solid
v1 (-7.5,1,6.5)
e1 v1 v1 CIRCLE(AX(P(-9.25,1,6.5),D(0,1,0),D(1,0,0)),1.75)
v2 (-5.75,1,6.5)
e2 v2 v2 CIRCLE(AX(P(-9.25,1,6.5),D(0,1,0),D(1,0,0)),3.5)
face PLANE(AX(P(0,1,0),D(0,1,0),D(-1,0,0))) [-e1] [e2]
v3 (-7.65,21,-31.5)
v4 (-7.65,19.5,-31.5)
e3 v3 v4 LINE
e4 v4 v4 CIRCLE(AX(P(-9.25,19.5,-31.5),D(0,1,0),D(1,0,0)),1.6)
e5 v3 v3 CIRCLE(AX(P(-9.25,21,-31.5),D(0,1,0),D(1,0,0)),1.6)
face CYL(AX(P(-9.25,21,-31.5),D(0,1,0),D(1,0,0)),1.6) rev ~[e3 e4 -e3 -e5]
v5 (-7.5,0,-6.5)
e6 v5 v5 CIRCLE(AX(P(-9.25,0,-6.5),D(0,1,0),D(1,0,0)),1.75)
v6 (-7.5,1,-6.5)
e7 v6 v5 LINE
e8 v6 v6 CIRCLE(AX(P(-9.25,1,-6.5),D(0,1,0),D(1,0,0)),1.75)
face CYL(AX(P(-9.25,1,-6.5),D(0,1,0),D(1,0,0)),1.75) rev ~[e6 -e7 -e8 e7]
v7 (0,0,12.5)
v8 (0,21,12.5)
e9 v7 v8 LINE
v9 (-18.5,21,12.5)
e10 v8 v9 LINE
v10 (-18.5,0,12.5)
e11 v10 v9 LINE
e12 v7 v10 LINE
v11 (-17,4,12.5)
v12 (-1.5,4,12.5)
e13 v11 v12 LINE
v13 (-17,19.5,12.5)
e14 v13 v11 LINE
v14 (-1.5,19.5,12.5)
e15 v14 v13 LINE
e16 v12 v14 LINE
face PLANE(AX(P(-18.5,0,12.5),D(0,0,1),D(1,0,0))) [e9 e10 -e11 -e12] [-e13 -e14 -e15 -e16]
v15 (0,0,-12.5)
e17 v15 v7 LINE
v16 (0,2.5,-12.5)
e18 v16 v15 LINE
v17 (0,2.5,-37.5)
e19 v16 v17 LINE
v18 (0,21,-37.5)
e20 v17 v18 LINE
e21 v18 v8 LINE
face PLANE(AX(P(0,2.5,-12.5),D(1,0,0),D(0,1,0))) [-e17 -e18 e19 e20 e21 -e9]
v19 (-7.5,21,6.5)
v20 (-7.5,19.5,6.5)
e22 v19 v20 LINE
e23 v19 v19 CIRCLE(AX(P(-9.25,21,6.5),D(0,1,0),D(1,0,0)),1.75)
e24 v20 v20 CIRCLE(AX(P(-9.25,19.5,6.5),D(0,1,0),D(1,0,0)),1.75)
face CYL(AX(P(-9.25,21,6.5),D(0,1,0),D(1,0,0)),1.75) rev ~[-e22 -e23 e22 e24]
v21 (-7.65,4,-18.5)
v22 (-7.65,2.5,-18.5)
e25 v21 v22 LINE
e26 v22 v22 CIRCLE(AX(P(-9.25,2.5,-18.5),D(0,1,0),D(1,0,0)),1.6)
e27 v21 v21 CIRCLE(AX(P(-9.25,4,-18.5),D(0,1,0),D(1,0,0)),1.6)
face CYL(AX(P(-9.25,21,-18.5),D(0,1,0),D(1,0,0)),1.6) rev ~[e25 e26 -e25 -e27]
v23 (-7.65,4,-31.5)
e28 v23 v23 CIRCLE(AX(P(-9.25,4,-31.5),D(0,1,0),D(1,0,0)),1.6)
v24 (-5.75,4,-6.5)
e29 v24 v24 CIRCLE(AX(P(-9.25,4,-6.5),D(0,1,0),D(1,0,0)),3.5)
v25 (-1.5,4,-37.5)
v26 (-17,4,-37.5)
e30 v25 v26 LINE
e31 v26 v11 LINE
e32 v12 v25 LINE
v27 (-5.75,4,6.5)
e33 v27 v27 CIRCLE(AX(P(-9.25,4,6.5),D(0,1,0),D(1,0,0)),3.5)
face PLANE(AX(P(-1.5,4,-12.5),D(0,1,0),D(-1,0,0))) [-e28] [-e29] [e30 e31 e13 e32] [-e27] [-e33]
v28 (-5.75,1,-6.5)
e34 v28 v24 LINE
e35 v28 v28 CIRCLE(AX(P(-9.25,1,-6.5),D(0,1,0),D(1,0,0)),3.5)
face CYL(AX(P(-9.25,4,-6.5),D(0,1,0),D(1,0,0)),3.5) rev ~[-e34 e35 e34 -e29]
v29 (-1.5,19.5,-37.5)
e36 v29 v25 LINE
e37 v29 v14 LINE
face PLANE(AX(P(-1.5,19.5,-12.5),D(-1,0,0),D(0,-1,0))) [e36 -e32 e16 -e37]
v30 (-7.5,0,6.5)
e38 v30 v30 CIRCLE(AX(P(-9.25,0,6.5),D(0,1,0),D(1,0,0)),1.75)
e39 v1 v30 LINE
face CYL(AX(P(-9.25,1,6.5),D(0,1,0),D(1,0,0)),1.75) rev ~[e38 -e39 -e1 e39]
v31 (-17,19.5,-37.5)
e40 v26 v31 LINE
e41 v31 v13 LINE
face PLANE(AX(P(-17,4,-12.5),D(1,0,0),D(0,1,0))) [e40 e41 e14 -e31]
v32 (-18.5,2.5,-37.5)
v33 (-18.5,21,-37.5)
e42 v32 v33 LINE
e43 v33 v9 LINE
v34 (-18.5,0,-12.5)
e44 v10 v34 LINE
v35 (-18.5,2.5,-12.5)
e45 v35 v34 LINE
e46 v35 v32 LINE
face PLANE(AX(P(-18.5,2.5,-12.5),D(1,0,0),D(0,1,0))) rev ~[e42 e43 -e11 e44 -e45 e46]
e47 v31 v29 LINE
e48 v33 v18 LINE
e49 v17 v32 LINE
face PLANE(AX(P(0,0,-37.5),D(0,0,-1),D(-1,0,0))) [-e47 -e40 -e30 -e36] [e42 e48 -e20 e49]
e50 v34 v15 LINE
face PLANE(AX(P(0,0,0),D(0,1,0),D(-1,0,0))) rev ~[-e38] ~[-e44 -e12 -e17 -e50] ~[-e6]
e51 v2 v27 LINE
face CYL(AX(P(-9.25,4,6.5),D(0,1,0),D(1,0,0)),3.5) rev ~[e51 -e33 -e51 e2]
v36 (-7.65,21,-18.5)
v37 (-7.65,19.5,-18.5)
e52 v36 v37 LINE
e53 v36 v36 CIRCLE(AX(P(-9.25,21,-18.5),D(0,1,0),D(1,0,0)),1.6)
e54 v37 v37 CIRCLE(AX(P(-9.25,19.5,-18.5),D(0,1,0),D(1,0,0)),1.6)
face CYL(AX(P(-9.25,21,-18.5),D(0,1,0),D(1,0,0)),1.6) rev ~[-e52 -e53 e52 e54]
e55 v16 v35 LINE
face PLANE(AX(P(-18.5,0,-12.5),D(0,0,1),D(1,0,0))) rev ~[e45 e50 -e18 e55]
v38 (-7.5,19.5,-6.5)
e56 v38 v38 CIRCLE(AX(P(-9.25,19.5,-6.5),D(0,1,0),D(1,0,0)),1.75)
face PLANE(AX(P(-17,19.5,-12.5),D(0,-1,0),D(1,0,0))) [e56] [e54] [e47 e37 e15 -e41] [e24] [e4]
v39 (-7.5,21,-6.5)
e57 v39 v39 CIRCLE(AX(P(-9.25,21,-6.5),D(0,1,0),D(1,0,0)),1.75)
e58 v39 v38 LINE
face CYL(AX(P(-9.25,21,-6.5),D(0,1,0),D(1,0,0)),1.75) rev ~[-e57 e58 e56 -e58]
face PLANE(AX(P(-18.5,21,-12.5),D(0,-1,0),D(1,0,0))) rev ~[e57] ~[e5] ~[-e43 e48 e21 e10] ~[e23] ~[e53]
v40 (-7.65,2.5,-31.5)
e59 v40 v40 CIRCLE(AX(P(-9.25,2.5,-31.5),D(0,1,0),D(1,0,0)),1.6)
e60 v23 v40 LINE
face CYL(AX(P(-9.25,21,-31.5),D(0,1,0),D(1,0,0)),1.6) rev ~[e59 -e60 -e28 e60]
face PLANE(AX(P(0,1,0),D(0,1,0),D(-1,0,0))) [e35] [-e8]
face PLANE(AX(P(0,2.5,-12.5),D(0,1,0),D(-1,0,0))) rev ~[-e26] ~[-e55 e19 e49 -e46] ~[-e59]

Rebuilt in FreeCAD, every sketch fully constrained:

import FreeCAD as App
import Part
import Sketcher
Q = App.Units.Quantity

doc = App.newDocument("Part")
body = doc.addObject("PartDesign::Body", "Body")

sketch1 = body.newObject("Sketcher::SketchObject", "Sketch")
sketch1.AttachmentSupport = (doc.getObject("XZ_Plane"), [""])
sketch1.MapMode = "FlatFace"
sketch1.addGeometry([
    Part.LineSegment(App.Vector(-18.5, 12.5, 0), App.Vector(0, 12.5, 0)),
    Part.LineSegment(App.Vector(0, 12.5, 0), App.Vector(0, -12.5, 0)),
    Part.LineSegment(App.Vector(0, -12.5, 0), App.Vector(-18.5, -12.5, 0)),
    Part.LineSegment(App.Vector(-18.5, -12.5, 0), App.Vector(-18.5, 12.5, 0)),
], False)
sketch1.addConstraint([
    Sketcher.Constraint("Coincident", 0, 2, 1, 1),
    Sketcher.Constraint("Coincident", 1, 2, 2, 1),
    Sketcher.Constraint("Coincident", 2, 2, 3, 1),
    Sketcher.Constraint("Coincident", 3, 2, 0, 1),
    Sketcher.Constraint("Horizontal", 0),
    Sketcher.Constraint("Vertical", 1),
    Sketcher.Constraint("Horizontal", 2),
    Sketcher.Constraint("Vertical", 3),
    Sketcher.Constraint("Symmetric", 0, 2, 1, 2, -1, 1),
    Sketcher.Constraint("DistanceY", 1, 2, 1, 1, Q("25 mm")),
    Sketcher.Constraint("DistanceX", 0, 1, 0, 2, Q("18.5 mm")),
])
pad1 = body.newObject("PartDesign::Pad", "Pad")
pad1.Profile = sketch1
pad1.Length = 1
pad1.Reversed = True

sketch2 = body.newObject("Sketcher::SketchObject", "Sketch001")
sketch2.AttachmentSupport = (doc.getObject("XZ_Plane"), [""])
sketch2.MapMode = "FlatFace"
sketch2.AttachmentOffset = App.Placement(App.Vector(0, 0, -1), App.Rotation())
sketch2.addGeometry([
    Part.Circle(App.Vector(-9.25, 6.5, 0), App.Vector(0, 0, 1), 1.75),
    Part.Circle(App.Vector(-9.25, -6.5, 0), App.Vector(0, 0, 1), 1.75),
], False)
sketch2.addConstraint([
    Sketcher.Constraint("Equal", 0, 1),
    Sketcher.Constraint("Symmetric", 0, 3, 1, 3, -1),
    Sketcher.Constraint("Diameter", 0, Q("3.5 mm")),
    Sketcher.Constraint("DistanceY", 1, 3, 0, 3, Q("13 mm")),
    Sketcher.Constraint("DistanceX", 0, 3, -1, 1, Q("9.25 mm")),
])
pocket1 = body.newObject("PartDesign::Pocket", "Pocket")
pocket1.Profile = sketch2
pocket1.Type = "ThroughAll"
pocket1.Reversed = True

sketch3 = body.newObject("Sketcher::SketchObject", "Sketch002")
sketch3.AttachmentSupport = (doc.getObject("XZ_Plane"), [""])
sketch3.MapMode = "FlatFace"
sketch3.AttachmentOffset = App.Placement(App.Vector(0, 0, -1), App.Rotation())
sketch3.addGeometry([
    Part.LineSegment(App.Vector(0, 12.5, 0), App.Vector(0, -12.5, 0)),
    Part.LineSegment(App.Vector(0, -12.5, 0), App.Vector(-18.5, -12.5, 0)),
    Part.LineSegment(App.Vector(-18.5, -12.5, 0), App.Vector(-18.5, 12.5, 0)),
    Part.LineSegment(App.Vector(-18.5, 12.5, 0), App.Vector(0, 12.5, 0)),
    Part.Circle(App.Vector(-9.25, 6.5, 0), App.Vector(0, 0, 1), 3.5),
    Part.Circle(App.Vector(-9.25, -6.5, 0), App.Vector(0, 0, 1), 3.5),
], False)
sketch3.addConstraint([
    Sketcher.Constraint("Coincident", 0, 2, 1, 1),
    Sketcher.Constraint("Coincident", 1, 2, 2, 1),
    Sketcher.Constraint("Coincident", 2, 2, 3, 1),
    Sketcher.Constraint("Coincident", 3, 2, 0, 1),
    Sketcher.Constraint("Vertical", 0),
    Sketcher.Constraint("Horizontal", 1),
    Sketcher.Constraint("Vertical", 2),
    Sketcher.Constraint("Horizontal", 3),
    Sketcher.Constraint("Equal", 4, 5),
    Sketcher.Constraint("Symmetric", 0, 2, 3, 2, -1, 1),
    Sketcher.Constraint("Symmetric", 4, 3, 5, 3, -1),
    Sketcher.Constraint("Diameter", 4, Q("7 mm")),
    Sketcher.Constraint("DistanceY", 0, 2, 0, 1, Q("25 mm")),
    Sketcher.Constraint("DistanceX", 1, 2, 1, 1, Q("18.5 mm")),
    Sketcher.Constraint("DistanceY", 5, 3, 4, 3, Q("13 mm")),
    Sketcher.Constraint("DistanceX", 4, 3, -1, 1, Q("9.25 mm")),
])
pad2 = body.newObject("PartDesign::Pad", "Pad001")
pad2.Profile = sketch3
pad2.Length = 1.5
pad2.Reversed = True

sketch4 = body.newObject("Sketcher::SketchObject", "Sketch003")
sketch4.AttachmentSupport = (doc.getObject("XY_Plane"), [""])
sketch4.MapMode = "FlatFace"
sketch4.AttachmentOffset = App.Placement(App.Vector(0, 0, 12.5), App.Rotation())
sketch4.addGeometry([
    Part.LineSegment(App.Vector(-18.5, 21, 0), App.Vector(-18.5, 2.5, 0)),
    Part.LineSegment(App.Vector(-18.5, 2.5, 0), App.Vector(0, 2.5, 0)),
    Part.LineSegment(App.Vector(0, 2.5, 0), App.Vector(0, 21, 0)),
    Part.LineSegment(App.Vector(0, 21, 0), App.Vector(-18.5, 21, 0)),
    Part.LineSegment(App.Vector(-1.5, 4, 0), App.Vector(-17, 4, 0)),
    Part.LineSegment(App.Vector(-17, 4, 0), App.Vector(-17, 19.5, 0)),
    Part.LineSegment(App.Vector(-17, 19.5, 0), App.Vector(-1.5, 19.5, 0)),
    Part.LineSegment(App.Vector(-1.5, 19.5, 0), App.Vector(-1.5, 4, 0)),
], False)
sketch4.addConstraint([
    Sketcher.Constraint("Coincident", 0, 2, 1, 1),
    Sketcher.Constraint("Coincident", 1, 2, 2, 1),
    Sketcher.Constraint("Coincident", 2, 2, 3, 1),
    Sketcher.Constraint("Coincident", 3, 2, 0, 1),
    Sketcher.Constraint("Coincident", 4, 2, 5, 1),
    Sketcher.Constraint("Coincident", 5, 2, 6, 1),
    Sketcher.Constraint("Coincident", 6, 2, 7, 1),
    Sketcher.Constraint("Coincident", 7, 2, 4, 1),
    Sketcher.Constraint("Vertical", 0),
    Sketcher.Constraint("Horizontal", 1),
    Sketcher.Constraint("Vertical", 2),
    Sketcher.Constraint("Horizontal", 3),
    Sketcher.Constraint("Horizontal", 4),
    Sketcher.Constraint("Vertical", 5),
    Sketcher.Constraint("Horizontal", 6),
    Sketcher.Constraint("Vertical", 7),
    Sketcher.Constraint("PointOnObject", 1, 2, -2),
    Sketcher.Constraint("Equal", 3, 0),
    Sketcher.Constraint("Equal", 6, 5),
    Sketcher.Constraint("DistanceX", 4, 2, 4, 1, Q("15.5 mm")),
    Sketcher.Constraint("DistanceX", 6, 2, -1, 1, Q("1.5 mm")),
    Sketcher.Constraint("DistanceX", 0, 2, 4, 2, Q("1.5 mm")),
    Sketcher.Constraint("DistanceY", 0, 2, 4, 2, Q("1.5 mm")),
    Sketcher.Constraint("DistanceY", -1, 1, 2, 2, Q("21 mm")),
])
pad3 = body.newObject("PartDesign::Pad", "Pad002")
pad3.Profile = sketch4
pad3.Length = 25
pad3.Reversed = True

sketch5 = body.newObject("Sketcher::SketchObject", "Sketch004")
sketch5.AttachmentSupport = (doc.getObject("XZ_Plane"), [""])
sketch5.MapMode = "FlatFace"
sketch5.AttachmentOffset = App.Placement(App.Vector(0, 0, -4), App.Rotation())
sketch5.addGeometry([
    Part.Circle(App.Vector(-9.25, 6.5, 0), App.Vector(0, 0, 1), 3.5),
    Part.Circle(App.Vector(-9.25, -6.5, 0), App.Vector(0, 0, 1), 3.5),
], False)
sketch5.addConstraint([
    Sketcher.Constraint("Equal", 0, 1),
    Sketcher.Constraint("Symmetric", 0, 3, 1, 3, -1),
    Sketcher.Constraint("Diameter", 0, Q("7 mm")),
    Sketcher.Constraint("DistanceY", 1, 3, 0, 3, Q("13 mm")),
    Sketcher.Constraint("DistanceX", 0, 3, -1, 1, Q("9.25 mm")),
])
pocket2 = body.newObject("PartDesign::Pocket", "Pocket001")
pocket2.Profile = sketch5
pocket2.Length = 1.5
pocket2.Reversed = True

sketch6 = body.newObject("Sketcher::SketchObject", "Sketch005")
sketch6.AttachmentSupport = (doc.getObject("XZ_Plane"), [""])
sketch6.MapMode = "FlatFace"
sketch6.AttachmentOffset = App.Placement(App.Vector(0, 0, -21), App.Rotation())
sketch6.addGeometry([
    Part.Circle(App.Vector(-9.25, -6.5, 0), App.Vector(0, 0, 1), 1.75),
    Part.Circle(App.Vector(-9.25, 6.5, 0), App.Vector(0, 0, 1), 1.75),
], False)
sketch6.addConstraint([
    Sketcher.Constraint("Equal", 0, 1),
    Sketcher.Constraint("Symmetric", 0, 3, 1, 3, -1),
    Sketcher.Constraint("Diameter", 0, Q("3.5 mm")),
    Sketcher.Constraint("DistanceY", 0, 3, 1, 3, Q("13 mm")),
    Sketcher.Constraint("DistanceX", 0, 3, -1, 1, Q("9.25 mm")),
])
pocket3 = body.newObject("PartDesign::Pocket", "Pocket002")
pocket3.Profile = sketch6
pocket3.Type = "ThroughAll"
pocket3.Reversed = True

sketch7 = body.newObject("Sketcher::SketchObject", "Sketch006")
sketch7.AttachmentSupport = (doc.getObject("XY_Plane"), [""])
sketch7.MapMode = "FlatFace"
sketch7.AttachmentOffset = App.Placement(App.Vector(0, 0, -12.5), App.Rotation())
sketch7.addGeometry([
    Part.LineSegment(App.Vector(0, 21, 0), App.Vector(0, 2.5, 0)),
    Part.LineSegment(App.Vector(0, 2.5, 0), App.Vector(-18.5, 2.5, 0)),
    Part.LineSegment(App.Vector(-18.5, 2.5, 0), App.Vector(-18.5, 21, 0)),
    Part.LineSegment(App.Vector(-18.5, 21, 0), App.Vector(0, 21, 0)),
    Part.LineSegment(App.Vector(-17, 4, 0), App.Vector(-1.5, 4, 0)),
    Part.LineSegment(App.Vector(-1.5, 4, 0), App.Vector(-1.5, 19.5, 0)),
    Part.LineSegment(App.Vector(-1.5, 19.5, 0), App.Vector(-17, 19.5, 0)),
    Part.LineSegment(App.Vector(-17, 19.5, 0), App.Vector(-17, 4, 0)),
], False)
sketch7.addConstraint([
    Sketcher.Constraint("Coincident", 0, 2, 1, 1),
    Sketcher.Constraint("Coincident", 1, 2, 2, 1),
    Sketcher.Constraint("Coincident", 2, 2, 3, 1),
    Sketcher.Constraint("Coincident", 3, 2, 0, 1),
    Sketcher.Constraint("Coincident", 4, 2, 5, 1),
    Sketcher.Constraint("Coincident", 5, 2, 6, 1),
    Sketcher.Constraint("Coincident", 6, 2, 7, 1),
    Sketcher.Constraint("Coincident", 7, 2, 4, 1),
    Sketcher.Constraint("Vertical", 0),
    Sketcher.Constraint("Horizontal", 1),
    Sketcher.Constraint("Vertical", 2),
    Sketcher.Constraint("Horizontal", 3),
    Sketcher.Constraint("Horizontal", 4),
    Sketcher.Constraint("Vertical", 5),
    Sketcher.Constraint("Horizontal", 6),
    Sketcher.Constraint("Vertical", 7),
    Sketcher.Constraint("PointOnObject", 0, 2, -2),
    Sketcher.Constraint("Equal", 3, 0),
    Sketcher.Constraint("Equal", 6, 5),
    Sketcher.Constraint("DistanceX", 1, 2, 1, 1, Q("18.5 mm")),
    Sketcher.Constraint("DistanceX", 4, 1, 4, 2, Q("15.5 mm")),
    Sketcher.Constraint("DistanceY", -1, 1, 2, 2, Q("21 mm")),
    Sketcher.Constraint("DistanceY", -1, 1, 4, 2, Q("4 mm")),
    Sketcher.Constraint("DistanceX", 6, 2, -1, 1, Q("17 mm")),
])
pad4 = body.newObject("PartDesign::Pad", "Pad003")
pad4.Profile = sketch7
pad4.Length = 25
pad4.Reversed = True

sketch8 = body.newObject("Sketcher::SketchObject", "Sketch007")
sketch8.AttachmentSupport = (doc.getObject("XZ_Plane"), [""])
sketch8.MapMode = "FlatFace"
sketch8.AttachmentOffset = App.Placement(App.Vector(0, 0, -21), App.Rotation())
sketch8.addGeometry([
    Part.Circle(App.Vector(-9.25, -31.5, 0), App.Vector(0, 0, 1), 1.6),
    Part.Circle(App.Vector(-9.25, -18.5, 0), App.Vector(0, 0, 1), 1.6),
], False)
sketch8.addConstraint([
    Sketcher.Constraint("Equal", 0, 1),
    Sketcher.Constraint("Vertical", 0, 3, 1, 3),
    Sketcher.Constraint("Diameter", 0, Q("3.2 mm")),
    Sketcher.Constraint("DistanceY", 0, 3, 1, 3, Q("13 mm")),
    Sketcher.Constraint("DistanceY", 0, 3, -1, 1, Q("31.5 mm")),
    Sketcher.Constraint("DistanceX", 0, 3, -1, 1, Q("9.25 mm")),
])
pocket4 = body.newObject("PartDesign::Pocket", "Pocket003")
pocket4.Profile = sketch8
pocket4.Type = "ThroughAll"
pocket4.Reversed = True

doc.recompute()
